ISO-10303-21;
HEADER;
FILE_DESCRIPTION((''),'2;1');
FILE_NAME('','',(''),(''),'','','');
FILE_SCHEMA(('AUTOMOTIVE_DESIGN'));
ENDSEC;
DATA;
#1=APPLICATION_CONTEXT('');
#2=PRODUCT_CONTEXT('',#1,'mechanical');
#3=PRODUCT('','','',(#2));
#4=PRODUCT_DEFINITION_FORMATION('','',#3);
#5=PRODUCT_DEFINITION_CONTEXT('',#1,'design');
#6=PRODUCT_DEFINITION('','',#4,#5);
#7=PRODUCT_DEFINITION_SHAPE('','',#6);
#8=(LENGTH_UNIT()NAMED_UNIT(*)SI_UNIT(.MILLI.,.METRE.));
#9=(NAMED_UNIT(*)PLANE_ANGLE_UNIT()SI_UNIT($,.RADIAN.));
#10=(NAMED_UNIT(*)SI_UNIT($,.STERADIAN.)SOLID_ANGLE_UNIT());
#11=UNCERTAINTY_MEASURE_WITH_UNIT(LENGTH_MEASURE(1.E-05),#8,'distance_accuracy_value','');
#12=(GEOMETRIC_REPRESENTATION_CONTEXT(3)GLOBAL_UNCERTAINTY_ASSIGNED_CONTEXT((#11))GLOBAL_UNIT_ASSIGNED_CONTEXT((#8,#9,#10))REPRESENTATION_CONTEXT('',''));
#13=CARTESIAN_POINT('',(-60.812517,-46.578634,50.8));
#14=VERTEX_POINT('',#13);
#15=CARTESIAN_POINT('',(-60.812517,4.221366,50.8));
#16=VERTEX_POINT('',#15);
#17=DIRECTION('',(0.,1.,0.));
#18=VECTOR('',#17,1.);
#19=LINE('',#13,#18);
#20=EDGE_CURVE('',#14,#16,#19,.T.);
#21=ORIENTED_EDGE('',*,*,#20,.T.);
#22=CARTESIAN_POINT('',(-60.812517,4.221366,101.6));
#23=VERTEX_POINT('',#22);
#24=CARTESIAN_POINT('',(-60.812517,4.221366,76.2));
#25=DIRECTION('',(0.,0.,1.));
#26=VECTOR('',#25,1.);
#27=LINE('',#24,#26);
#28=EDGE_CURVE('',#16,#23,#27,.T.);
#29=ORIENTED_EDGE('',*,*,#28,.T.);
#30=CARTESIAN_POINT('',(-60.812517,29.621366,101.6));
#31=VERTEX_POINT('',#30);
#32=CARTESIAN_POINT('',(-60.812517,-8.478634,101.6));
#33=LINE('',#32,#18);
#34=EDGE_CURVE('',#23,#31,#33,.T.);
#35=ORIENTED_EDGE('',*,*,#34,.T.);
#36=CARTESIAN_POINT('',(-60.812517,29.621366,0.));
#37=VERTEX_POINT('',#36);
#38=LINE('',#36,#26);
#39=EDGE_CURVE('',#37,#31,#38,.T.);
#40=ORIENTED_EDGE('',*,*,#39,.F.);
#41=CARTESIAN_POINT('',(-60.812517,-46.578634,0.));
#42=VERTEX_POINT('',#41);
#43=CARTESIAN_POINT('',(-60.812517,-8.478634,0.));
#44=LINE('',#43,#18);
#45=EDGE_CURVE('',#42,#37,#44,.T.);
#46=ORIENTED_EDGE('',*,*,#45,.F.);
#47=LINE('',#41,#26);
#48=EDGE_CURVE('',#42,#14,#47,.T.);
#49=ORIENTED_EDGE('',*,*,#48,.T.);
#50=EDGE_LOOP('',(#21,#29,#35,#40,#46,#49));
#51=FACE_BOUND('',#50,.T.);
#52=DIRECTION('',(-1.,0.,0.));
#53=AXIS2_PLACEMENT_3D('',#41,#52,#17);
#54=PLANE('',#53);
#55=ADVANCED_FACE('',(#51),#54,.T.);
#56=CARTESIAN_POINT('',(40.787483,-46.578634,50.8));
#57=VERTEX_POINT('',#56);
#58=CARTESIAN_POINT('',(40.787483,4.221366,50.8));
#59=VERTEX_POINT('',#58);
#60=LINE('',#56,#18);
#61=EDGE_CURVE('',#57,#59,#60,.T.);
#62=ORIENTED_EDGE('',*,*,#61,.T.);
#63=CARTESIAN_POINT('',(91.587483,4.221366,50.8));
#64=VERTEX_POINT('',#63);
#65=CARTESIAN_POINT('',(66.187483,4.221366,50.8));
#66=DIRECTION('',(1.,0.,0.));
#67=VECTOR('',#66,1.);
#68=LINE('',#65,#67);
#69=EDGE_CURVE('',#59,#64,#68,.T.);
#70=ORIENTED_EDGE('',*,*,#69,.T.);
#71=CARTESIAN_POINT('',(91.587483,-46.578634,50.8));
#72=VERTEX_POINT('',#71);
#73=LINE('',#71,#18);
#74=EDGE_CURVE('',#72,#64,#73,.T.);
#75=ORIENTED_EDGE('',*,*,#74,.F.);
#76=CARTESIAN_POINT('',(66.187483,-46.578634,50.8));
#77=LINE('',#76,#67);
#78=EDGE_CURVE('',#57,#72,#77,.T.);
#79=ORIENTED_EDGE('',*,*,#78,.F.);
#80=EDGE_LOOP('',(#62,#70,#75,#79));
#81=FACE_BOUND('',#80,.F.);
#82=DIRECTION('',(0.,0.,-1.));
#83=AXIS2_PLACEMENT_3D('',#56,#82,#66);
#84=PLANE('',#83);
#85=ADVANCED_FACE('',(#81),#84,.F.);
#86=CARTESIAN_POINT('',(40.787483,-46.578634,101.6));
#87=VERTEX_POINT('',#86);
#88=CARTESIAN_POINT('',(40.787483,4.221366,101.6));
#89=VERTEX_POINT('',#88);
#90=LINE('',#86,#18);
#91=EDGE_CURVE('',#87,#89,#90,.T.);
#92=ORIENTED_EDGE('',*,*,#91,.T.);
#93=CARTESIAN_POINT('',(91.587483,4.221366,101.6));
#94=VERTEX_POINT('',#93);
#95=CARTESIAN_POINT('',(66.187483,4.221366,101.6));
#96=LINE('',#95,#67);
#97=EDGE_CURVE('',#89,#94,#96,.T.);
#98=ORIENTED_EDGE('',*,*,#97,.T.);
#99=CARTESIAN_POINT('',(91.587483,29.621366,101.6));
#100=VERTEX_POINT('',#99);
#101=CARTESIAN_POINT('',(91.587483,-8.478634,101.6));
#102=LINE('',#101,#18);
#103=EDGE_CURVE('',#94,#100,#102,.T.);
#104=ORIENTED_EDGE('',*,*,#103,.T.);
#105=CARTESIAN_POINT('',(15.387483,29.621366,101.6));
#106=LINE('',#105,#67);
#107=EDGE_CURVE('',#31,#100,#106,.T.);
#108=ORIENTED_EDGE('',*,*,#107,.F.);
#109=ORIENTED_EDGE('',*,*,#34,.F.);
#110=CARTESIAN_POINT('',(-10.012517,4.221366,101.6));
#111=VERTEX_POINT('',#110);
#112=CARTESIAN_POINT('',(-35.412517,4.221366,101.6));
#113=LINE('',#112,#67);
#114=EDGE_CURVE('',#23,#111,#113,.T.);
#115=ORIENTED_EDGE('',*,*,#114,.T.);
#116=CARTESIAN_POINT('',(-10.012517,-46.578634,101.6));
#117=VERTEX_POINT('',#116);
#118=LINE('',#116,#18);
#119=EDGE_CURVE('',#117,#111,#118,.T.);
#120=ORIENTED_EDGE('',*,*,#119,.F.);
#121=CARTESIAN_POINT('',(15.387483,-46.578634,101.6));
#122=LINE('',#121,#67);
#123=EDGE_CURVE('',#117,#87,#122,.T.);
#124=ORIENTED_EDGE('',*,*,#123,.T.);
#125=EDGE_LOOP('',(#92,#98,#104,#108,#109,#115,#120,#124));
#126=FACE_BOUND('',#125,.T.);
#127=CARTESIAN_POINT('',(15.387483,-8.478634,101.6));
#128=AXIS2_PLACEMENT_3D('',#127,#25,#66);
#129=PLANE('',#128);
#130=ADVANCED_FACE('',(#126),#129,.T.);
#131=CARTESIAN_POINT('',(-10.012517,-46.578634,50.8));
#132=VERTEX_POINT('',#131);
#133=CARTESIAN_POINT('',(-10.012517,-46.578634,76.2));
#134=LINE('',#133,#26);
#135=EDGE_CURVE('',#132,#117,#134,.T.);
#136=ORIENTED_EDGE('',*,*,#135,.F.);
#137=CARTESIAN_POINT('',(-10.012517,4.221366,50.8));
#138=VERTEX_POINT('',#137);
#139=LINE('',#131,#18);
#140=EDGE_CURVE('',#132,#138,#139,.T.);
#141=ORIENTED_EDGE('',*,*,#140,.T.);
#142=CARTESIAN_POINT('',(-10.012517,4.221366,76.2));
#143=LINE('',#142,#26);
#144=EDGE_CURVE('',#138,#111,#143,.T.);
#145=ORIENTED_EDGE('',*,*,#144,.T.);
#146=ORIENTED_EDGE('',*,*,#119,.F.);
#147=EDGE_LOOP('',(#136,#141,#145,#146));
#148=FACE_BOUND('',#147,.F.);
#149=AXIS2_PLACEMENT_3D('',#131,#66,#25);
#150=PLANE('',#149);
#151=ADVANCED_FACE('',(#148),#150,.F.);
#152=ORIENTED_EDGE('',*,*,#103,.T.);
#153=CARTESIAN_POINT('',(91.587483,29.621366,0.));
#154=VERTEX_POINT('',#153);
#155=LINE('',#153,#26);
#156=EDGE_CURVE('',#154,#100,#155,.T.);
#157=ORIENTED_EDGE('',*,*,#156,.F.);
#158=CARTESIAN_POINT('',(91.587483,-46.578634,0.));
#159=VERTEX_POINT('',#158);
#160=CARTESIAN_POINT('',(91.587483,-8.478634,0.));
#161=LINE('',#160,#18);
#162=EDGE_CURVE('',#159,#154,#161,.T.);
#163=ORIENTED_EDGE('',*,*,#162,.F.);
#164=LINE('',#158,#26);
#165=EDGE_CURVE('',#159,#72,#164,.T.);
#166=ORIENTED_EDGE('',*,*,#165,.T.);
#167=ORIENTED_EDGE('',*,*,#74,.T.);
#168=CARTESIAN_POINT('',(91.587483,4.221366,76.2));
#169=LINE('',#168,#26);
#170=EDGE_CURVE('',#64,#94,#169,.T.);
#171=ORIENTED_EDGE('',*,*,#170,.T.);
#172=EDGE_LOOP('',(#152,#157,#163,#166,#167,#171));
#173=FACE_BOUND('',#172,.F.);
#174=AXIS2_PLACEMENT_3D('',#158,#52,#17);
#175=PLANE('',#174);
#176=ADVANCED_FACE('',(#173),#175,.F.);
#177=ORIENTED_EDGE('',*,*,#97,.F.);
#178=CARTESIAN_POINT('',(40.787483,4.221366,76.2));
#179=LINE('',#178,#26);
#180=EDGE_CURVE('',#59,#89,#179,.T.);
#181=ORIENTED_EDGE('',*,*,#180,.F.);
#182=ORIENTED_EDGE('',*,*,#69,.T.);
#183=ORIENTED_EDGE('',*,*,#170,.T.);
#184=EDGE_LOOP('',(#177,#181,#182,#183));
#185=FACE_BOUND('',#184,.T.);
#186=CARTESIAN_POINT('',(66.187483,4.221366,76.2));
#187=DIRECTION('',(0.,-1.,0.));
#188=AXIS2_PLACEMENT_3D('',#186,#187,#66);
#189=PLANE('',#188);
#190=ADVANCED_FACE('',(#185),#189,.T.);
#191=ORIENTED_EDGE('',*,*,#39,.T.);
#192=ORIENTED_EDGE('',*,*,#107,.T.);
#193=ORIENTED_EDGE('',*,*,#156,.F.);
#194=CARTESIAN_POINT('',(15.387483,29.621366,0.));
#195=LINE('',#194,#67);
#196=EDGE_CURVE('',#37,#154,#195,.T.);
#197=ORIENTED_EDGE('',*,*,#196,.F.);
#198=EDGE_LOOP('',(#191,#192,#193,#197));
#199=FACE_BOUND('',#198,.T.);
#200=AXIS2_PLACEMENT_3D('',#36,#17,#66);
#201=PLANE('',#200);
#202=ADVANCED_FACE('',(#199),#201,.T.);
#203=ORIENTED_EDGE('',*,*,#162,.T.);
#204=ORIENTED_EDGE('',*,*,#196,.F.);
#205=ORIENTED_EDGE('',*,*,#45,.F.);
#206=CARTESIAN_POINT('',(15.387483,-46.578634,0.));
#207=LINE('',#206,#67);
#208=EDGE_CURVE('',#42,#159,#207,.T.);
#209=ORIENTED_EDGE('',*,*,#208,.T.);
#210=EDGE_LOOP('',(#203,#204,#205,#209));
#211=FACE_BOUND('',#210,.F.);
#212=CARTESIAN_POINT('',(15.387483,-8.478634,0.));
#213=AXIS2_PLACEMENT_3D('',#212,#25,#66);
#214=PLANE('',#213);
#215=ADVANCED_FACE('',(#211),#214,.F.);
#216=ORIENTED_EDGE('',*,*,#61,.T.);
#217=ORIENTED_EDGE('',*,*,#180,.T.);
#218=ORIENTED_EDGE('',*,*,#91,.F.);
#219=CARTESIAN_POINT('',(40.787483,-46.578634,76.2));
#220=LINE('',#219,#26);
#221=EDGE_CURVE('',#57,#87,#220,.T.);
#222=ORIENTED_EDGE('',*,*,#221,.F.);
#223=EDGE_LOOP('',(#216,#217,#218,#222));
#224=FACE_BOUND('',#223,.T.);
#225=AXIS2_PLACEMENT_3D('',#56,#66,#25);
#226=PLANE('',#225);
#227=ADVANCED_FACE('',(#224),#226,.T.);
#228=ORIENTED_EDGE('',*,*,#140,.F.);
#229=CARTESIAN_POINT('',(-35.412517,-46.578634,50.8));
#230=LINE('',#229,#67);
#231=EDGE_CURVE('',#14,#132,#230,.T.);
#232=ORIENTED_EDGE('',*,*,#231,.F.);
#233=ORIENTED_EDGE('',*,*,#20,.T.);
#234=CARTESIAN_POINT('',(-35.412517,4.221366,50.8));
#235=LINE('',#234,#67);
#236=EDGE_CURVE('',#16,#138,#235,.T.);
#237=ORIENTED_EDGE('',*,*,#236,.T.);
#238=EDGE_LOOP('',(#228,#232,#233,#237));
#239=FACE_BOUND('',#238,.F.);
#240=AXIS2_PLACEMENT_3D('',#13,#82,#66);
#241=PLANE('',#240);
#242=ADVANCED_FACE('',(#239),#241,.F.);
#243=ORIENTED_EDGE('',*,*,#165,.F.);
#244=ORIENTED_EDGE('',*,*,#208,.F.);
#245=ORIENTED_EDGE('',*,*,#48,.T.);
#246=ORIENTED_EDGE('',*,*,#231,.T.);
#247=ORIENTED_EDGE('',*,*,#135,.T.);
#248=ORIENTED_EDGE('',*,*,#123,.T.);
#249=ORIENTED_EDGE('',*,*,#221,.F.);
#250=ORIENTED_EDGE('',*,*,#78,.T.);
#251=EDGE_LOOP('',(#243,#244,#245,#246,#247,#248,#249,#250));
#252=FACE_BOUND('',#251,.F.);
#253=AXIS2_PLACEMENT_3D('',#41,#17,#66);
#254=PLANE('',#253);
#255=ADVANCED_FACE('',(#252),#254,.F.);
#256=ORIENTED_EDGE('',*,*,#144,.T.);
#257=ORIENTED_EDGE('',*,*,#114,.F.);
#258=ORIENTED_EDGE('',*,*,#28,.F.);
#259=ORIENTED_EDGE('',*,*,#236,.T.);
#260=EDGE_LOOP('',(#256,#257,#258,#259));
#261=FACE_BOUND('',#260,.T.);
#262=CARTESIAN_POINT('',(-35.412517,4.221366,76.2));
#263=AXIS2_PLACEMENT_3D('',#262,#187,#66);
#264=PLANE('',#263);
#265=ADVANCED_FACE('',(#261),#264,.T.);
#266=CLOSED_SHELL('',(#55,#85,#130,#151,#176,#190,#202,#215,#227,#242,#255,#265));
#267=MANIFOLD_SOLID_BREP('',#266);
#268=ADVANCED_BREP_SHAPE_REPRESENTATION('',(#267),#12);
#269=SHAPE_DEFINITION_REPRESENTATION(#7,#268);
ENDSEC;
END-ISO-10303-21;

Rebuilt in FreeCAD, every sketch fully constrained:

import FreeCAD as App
import Part
import Sketcher

V = App.Vector
Q = App.Units.Quantity

doc = App.newDocument("Part")
body = doc.addObject("PartDesign::Body", "Body")

sketch1 = doc.addObject("Sketcher::SketchObject", "Sketch")
body.addObject(sketch1)
sketch1.AttachmentSupport = (doc.XY_Plane, [""])
sketch1.MapMode = "FlatFace"
sketch1.addGeometry([
    Part.LineSegment(V(-61, 30, 0), V(-61, -47, 0)),
    Part.LineSegment(V(-61, -47, 0), V(92, -47, 0)),
    Part.LineSegment(V(92, -47, 0), V(92, 30, 0)),
    Part.LineSegment(V(92, 30, 0), V(-61, 30, 0)),
], False)
sketch1.addConstraint([
    Sketcher.Constraint("Coincident", 0, 2, 1, 1),
    Sketcher.Constraint("Coincident", 1, 2, 2, 1),
    Sketcher.Constraint("Coincident", 2, 2, 3, 1),
    Sketcher.Constraint("Coincident", 3, 2, 0, 1),
    Sketcher.Constraint("Vertical", 0),
    Sketcher.Constraint("Horizontal", 1),
    Sketcher.Constraint("Vertical", 2),
    Sketcher.Constraint("Horizontal", 3),
    Sketcher.Constraint("DistanceX", 1, 1, 1, 2, Q("6 in")),
    Sketcher.Constraint("DistanceY", 0, 2, 0, 1, Q("3 in")),
    Sketcher.Constraint("DistanceX", 0, 2, -1, 1, 60.812517),
    Sketcher.Constraint("DistanceY", 0, 2, -1, 1, 46.578634),
])
pad1 = doc.addObject("PartDesign::Pad", "Pad")
body.addObject(pad1)
pad1.Profile = sketch1
pad1.Length = Q("4 in")

sketch2 = doc.addObject("Sketcher::SketchObject", "Sketch001")
body.addObject(sketch2)
sketch2.AttachmentSupport = (doc.XZ_Plane, [""])
sketch2.MapMode = "FlatFace"
sketch2.AttachmentOffset = App.Placement(V(0, 0, 46.578634), App.Rotation())
sketch2.addGeometry([
    Part.LineSegment(V(-61, 102, 0), V(-61, 51, 0)),
    Part.LineSegment(V(-61, 51, 0), V(-10, 51, 0)),
    Part.LineSegment(V(-10, 51, 0), V(-10, 102, 0)),
    Part.LineSegment(V(-10, 102, 0), V(-61, 102, 0)),
], False)
sketch2.addConstraint([
    Sketcher.Constraint("Coincident", 0, 2, 1, 1),
    Sketcher.Constraint("Coincident", 1, 2, 2, 1),
    Sketcher.Constraint("Coincident", 2, 2, 3, 1),
    Sketcher.Constraint("Coincident", 3, 2, 0, 1),
    Sketcher.Constraint("Vertical", 0),
    Sketcher.Constraint("Horizontal", 1),
    Sketcher.Constraint("Vertical", 2),
    Sketcher.Constraint("Horizontal", 3),
    Sketcher.Constraint("Equal", 3, 0),
    Sketcher.Constraint("DistanceX", 1, 1, 1, 2, Q("2 in")),
    Sketcher.Constraint("DistanceY", -1, 1, 0, 2, Q("2 in")),
    Sketcher.Constraint("DistanceX", 0, 2, -1, 1, 60.812517),
])
pocket1 = doc.addObject("PartDesign::Pocket", "Pocket")
body.addObject(pocket1)
pocket1.Profile = sketch2
pocket1.Length = Q("2 in")

sketch3 = doc.addObject("Sketcher::SketchObject", "Sketch002")
body.addObject(sketch3)
sketch3.AttachmentSupport = (doc.XZ_Plane, [""])
sketch3.MapMode = "FlatFace"
sketch3.AttachmentOffset = App.Placement(V(0, 0, 46.578634), App.Rotation())
sketch3.addGeometry([
    Part.LineSegment(V(41, 102, 0), V(41, 51, 0)),
    Part.LineSegment(V(41, 51, 0), V(92, 51, 0)),
    Part.LineSegment(V(92, 51, 0), V(92, 102, 0)),
    Part.LineSegment(V(92, 102, 0), V(41, 102, 0)),
], False)
sketch3.addConstraint([
    Sketcher.Constraint("Coincident", 0, 2, 1, 1),
    Sketcher.Constraint("Coincident", 1, 2, 2, 1),
    Sketcher.Constraint("Coincident", 2, 2, 3, 1),
    Sketcher.Constraint("Coincident", 3, 2, 0, 1),
    Sketcher.Constraint("Vertical", 0),
    Sketcher.Constraint("Horizontal", 1),
    Sketcher.Constraint("Vertical", 2),
    Sketcher.Constraint("Horizontal", 3),
    Sketcher.Constraint("Equal", 3, 0),
    Sketcher.Constraint("DistanceX", 1, 1, 1, 2, Q("2 in")),
    Sketcher.Constraint("DistanceY", -1, 1, 0, 2, Q("2 in")),
    Sketcher.Constraint("DistanceX", -1, 1, 0, 2, 40.787483),
])
pocket2 = doc.addObject("PartDesign::Pocket", "Pocket001")
body.addObject(pocket2)
pocket2.Profile = sketch3
pocket2.Length = Q("2 in")

doc.recompute()
